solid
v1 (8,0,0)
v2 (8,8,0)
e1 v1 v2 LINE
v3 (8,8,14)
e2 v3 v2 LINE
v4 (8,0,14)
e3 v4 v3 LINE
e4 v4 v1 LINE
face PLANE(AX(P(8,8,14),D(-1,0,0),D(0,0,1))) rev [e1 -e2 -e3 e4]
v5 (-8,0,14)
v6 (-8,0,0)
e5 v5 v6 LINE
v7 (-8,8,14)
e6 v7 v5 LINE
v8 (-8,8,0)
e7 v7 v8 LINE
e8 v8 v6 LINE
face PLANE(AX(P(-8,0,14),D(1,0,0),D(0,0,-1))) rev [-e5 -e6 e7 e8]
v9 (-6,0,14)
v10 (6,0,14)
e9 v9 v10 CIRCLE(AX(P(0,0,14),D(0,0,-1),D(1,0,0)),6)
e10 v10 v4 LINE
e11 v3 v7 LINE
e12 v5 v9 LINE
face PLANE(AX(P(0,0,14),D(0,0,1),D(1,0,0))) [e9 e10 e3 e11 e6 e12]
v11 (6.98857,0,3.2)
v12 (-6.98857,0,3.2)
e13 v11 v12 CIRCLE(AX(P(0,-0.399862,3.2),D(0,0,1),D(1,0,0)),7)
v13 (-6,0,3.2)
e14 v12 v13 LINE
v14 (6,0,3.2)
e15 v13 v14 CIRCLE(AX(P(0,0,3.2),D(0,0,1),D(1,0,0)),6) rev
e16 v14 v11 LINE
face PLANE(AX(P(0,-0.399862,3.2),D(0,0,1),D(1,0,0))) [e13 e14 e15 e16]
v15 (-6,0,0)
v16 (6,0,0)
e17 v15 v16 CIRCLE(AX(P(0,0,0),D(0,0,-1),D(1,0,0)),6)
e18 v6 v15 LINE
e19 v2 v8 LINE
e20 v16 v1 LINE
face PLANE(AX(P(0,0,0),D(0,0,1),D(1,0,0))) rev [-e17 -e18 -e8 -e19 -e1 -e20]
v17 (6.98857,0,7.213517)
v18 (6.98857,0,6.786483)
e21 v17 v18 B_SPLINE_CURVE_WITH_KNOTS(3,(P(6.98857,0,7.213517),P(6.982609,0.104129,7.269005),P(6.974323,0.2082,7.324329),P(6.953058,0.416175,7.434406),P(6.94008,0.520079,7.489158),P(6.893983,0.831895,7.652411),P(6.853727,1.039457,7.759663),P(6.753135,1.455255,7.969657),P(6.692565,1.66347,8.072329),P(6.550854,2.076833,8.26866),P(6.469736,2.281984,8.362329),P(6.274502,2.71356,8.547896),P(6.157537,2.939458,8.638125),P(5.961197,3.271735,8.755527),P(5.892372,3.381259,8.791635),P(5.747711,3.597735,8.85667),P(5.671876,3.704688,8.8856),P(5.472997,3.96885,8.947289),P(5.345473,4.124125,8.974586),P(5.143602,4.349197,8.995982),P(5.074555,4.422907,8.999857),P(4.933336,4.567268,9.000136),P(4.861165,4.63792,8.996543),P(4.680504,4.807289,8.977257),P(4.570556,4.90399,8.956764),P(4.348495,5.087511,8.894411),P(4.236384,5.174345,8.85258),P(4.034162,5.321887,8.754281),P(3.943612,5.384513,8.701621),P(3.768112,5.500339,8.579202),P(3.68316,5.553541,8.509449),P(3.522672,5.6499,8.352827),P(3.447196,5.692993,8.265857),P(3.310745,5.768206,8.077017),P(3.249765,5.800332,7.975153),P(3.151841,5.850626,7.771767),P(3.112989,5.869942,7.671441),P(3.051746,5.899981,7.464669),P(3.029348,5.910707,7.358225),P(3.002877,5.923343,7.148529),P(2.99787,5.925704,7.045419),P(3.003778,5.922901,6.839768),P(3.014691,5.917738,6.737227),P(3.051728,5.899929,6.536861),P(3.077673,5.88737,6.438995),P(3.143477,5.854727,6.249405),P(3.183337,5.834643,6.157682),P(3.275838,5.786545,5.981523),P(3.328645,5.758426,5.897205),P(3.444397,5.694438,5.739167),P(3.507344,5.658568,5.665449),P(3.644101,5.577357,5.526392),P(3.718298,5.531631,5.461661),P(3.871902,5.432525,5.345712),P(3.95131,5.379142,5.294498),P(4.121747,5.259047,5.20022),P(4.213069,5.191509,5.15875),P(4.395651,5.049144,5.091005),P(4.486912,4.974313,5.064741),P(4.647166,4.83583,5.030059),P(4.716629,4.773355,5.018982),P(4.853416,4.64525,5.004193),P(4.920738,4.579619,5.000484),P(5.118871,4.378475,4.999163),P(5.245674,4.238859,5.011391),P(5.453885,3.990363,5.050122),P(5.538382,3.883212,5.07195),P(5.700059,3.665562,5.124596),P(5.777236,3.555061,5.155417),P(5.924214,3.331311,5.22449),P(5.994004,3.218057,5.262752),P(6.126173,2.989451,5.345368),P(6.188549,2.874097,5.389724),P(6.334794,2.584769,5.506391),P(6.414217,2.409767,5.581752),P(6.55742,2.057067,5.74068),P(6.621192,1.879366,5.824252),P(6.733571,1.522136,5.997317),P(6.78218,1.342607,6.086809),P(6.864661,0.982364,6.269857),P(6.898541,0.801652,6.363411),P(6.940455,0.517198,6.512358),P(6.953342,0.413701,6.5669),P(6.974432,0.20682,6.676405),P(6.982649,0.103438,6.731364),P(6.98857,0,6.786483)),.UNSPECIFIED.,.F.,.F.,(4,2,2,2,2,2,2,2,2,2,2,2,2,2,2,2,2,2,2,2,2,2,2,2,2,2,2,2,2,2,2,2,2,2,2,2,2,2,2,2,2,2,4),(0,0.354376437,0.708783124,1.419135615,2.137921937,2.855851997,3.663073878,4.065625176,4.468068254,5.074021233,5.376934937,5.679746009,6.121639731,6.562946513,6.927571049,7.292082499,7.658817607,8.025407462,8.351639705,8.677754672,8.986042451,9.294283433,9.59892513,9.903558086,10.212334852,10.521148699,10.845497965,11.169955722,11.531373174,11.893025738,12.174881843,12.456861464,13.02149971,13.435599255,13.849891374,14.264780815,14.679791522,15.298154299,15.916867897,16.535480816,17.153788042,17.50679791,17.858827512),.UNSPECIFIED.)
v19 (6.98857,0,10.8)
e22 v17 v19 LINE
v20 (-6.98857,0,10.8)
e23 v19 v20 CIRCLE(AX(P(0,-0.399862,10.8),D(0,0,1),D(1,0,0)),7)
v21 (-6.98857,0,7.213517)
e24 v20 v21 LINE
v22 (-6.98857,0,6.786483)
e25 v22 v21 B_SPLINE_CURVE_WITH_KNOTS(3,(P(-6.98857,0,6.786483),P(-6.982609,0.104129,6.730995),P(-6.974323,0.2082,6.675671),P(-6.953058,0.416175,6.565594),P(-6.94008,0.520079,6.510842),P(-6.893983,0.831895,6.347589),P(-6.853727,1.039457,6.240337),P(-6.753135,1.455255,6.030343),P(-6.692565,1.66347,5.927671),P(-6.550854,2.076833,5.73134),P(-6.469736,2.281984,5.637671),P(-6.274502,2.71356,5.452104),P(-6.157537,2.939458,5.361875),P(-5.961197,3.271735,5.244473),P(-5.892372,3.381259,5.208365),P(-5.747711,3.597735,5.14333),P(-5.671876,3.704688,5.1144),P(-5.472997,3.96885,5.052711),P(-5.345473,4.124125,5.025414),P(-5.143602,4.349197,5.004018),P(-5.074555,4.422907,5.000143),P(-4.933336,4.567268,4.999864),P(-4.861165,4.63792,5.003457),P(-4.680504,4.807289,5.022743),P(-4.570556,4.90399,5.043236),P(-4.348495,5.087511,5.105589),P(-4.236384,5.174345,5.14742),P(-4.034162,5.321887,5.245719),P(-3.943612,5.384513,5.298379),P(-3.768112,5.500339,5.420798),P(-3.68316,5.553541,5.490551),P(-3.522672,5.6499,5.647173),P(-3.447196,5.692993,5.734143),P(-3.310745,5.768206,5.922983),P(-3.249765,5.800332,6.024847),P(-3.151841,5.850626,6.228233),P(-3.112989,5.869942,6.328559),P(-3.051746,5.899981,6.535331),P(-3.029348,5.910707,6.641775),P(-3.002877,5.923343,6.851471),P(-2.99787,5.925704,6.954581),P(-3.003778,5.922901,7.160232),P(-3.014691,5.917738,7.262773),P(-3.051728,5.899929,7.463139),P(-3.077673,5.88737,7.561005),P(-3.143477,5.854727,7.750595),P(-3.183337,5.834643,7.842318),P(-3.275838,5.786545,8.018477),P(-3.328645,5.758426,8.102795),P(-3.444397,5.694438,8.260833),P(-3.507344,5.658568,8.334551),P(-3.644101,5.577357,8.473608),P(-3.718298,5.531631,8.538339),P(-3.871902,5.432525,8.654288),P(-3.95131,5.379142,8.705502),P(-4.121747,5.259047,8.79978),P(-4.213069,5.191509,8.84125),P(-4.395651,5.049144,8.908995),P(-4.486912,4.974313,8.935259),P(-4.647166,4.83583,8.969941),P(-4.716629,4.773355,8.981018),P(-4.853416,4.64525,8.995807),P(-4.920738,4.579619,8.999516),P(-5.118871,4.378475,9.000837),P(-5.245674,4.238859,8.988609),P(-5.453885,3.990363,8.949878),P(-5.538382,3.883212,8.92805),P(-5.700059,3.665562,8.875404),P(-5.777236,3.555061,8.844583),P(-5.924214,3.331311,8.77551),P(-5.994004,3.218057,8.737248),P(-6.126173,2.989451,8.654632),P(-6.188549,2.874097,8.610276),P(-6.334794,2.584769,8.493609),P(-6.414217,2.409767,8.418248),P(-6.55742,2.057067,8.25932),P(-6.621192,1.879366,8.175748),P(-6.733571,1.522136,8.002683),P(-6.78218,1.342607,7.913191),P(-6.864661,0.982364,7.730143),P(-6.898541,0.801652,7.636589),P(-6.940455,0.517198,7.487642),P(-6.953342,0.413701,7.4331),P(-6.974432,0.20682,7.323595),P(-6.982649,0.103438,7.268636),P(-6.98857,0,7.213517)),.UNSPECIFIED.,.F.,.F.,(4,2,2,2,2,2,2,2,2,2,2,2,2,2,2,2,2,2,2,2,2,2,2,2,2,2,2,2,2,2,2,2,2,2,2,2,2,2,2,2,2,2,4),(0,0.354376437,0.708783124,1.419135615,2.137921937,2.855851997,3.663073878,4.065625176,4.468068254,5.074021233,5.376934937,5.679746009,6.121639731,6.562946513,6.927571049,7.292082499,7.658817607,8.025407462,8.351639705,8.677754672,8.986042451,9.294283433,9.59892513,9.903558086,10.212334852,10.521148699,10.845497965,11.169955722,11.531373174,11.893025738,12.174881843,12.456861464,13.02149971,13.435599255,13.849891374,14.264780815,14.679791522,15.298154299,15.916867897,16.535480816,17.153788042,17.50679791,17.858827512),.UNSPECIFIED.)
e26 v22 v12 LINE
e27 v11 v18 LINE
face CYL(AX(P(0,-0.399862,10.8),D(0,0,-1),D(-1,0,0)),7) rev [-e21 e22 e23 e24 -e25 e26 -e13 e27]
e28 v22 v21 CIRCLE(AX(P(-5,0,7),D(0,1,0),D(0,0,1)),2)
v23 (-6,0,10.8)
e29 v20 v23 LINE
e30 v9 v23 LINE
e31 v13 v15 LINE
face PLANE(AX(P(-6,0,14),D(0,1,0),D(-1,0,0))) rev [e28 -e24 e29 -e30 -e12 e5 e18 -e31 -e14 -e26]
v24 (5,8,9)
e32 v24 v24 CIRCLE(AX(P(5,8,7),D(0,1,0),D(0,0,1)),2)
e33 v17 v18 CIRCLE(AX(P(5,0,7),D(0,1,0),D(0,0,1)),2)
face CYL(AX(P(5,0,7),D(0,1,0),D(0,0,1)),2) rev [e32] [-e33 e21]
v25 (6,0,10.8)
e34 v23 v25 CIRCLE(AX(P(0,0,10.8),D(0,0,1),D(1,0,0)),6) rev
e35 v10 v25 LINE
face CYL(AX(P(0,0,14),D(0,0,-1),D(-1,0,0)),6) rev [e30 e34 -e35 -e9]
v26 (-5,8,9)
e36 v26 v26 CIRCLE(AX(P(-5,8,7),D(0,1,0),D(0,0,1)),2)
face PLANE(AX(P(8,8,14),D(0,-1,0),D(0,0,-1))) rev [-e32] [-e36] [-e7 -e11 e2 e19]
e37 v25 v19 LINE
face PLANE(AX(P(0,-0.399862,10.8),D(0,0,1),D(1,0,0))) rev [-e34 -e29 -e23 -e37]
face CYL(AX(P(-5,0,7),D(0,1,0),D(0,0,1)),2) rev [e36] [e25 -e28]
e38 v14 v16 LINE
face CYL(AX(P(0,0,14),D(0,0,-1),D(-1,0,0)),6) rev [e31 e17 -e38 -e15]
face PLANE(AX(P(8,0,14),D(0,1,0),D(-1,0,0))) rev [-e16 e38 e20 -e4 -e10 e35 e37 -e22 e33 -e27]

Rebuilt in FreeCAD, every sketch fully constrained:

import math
import FreeCAD as App
import Part
import Sketcher

V = App.Vector

doc = App.newDocument("Part")
params = doc.addObject("Spreadsheet::Sheet", "Params")
for row, (alias, value) in enumerate([
    ("sketch1_radius", "6 mm"),
    ("sketch1_width", "2 mm"),
    ("sketch1_height", "8 mm"),
    ("pad1_length", "14 mm"),
    ("sketch2_diameter", "14 mm"),
    ("pocket1_length", "3.8 mm"),
    ("pocket1_length2", "3.8 mm"),
    ("sketch3_diameter", "4 mm"),
], start=1):
    params.set(f"A{row}", alias)
    params.set(f"B{row}", "=" + value)
    params.setAlias(f"B{row}", alias)

body = doc.addObject("PartDesign::Body", "Body")

sketch1 = body.newObject("Sketcher::SketchObject", "Sketch")
sketch1.AttachmentSupport = (doc.getObject("XY_Plane"), [""])
sketch1.MapMode = "FlatFace"
sketch1.addGeometry([
    Part.LineSegment(V(6, 0, 0), V(8, 0, 0)),
    Part.LineSegment(V(8, 0, 0), V(8, 8, 0)),
    Part.LineSegment(V(8, 8, 0), V(-8, 8, 0)),
    Part.LineSegment(V(-8, 8, 0), V(-8, 0, 0)),
    Part.LineSegment(V(-8, 0, 0), V(-6, 0, 0)),
    Part.ArcOfCircle(Part.Circle(V(0, 0, 0), V(0, 0, 1), 6), math.radians(0), math.radians(180)),
], False)
sketch1.addConstraint([
    Sketcher.Constraint("Coincident", 0, 2, 1, 1),
    Sketcher.Constraint("Coincident", 1, 2, 2, 1),
    Sketcher.Constraint("Coincident", 2, 2, 3, 1),
    Sketcher.Constraint("Coincident", 3, 2, 4, 1),
    Sketcher.Constraint("Coincident", 4, 2, 5, 2),
    Sketcher.Constraint("Coincident", 5, 1, 0, 1),
    Sketcher.Constraint("Horizontal", 0),
    Sketcher.Constraint("Vertical", 1),
    Sketcher.Constraint("Horizontal", 2),
    Sketcher.Constraint("Vertical", 3),
    Sketcher.Constraint("Horizontal", 4),
    Sketcher.Constraint("Coincident", 5, 3, -1, 1),
    Sketcher.Constraint("Symmetric", 0, 2, 3, 2, -1, 1),
    Sketcher.Constraint("PointOnObject", 0, 2, -1),
    Sketcher.Constraint("Radius", 5, 6.0),
    Sketcher.Constraint("DistanceX", 0, 1, 0, 2, 2.0),
    Sketcher.Constraint("DistanceY", 1, 1, 1, 2, 8.0),
])
sketch1.setExpression("Constraints[14]", "Params.sketch1_radius")
sketch1.setExpression("Constraints[15]", "Params.sketch1_width")
sketch1.setExpression("Constraints[16]", "Params.sketch1_height")
pad1 = body.newObject("PartDesign::Pad", "Pad")
pad1.Profile = sketch1
pad1.setExpression("Length", "Params.pad1_length")

sketch2 = body.newObject("Sketcher::SketchObject", "Sketch001")
sketch2.AttachmentSupport = (doc.getObject("XY_Plane"), [""])
sketch2.MapMode = "FlatFace"
sketch2.AttachmentOffset = App.Placement(V(0, 0, 7), App.Rotation())
sketch2.addGeometry(Part.Circle(V(0, -0.399862, 0), V(0, 0, 1), 7), False)
sketch2.addConstraint([
    Sketcher.Constraint("PointOnObject", 0, 3, -2),
    Sketcher.Constraint("Diameter", 0, 14.0),
    Sketcher.Constraint("DistanceY", 0, 3, -1, 1, 0.399862),
])
sketch2.setExpression("Constraints[1]", "Params.sketch2_diameter")
pocket1 = body.newObject("PartDesign::Pocket", "Pocket")
pocket1.Profile = sketch2
pocket1.Type = "TwoLengths"
pocket1.setExpression("Length", "Params.pocket1_length")
pocket1.setExpression("Length2", "Params.pocket1_length2")
pocket1.Reversed = True

sketch3 = body.newObject("Sketcher::SketchObject", "Sketch002")
sketch3.AttachmentSupport = (doc.getObject("XZ_Plane"), [""])
sketch3.MapMode = "FlatFace"
sketch3.AttachmentOffset = App.Placement(V(0, 0, -8), App.Rotation())
sketch3.addGeometry([
    Part.Circle(V(-5, 7, 0), V(0, 0, 1), 2),
    Part.Circle(V(5, 7, 0), V(0, 0, 1), 2),
], False)
sketch3.addConstraint([
    Sketcher.Constraint("Equal", 0, 1),
    Sketcher.Constraint("Symmetric", 0, 3, 1, 3, -2),
    Sketcher.Constraint("Diameter", 0, 4.0),
    Sketcher.Constraint("DistanceX", 0, 3, -1, 1, 5.0),
    Sketcher.Constraint("DistanceY", -1, 1, 0, 3, 7.0),
])
sketch3.setExpression("Constraints[2]", "Params.sketch3_diameter")
pocket2 = body.newObject("PartDesign::Pocket", "Pocket001")
pocket2.Profile = sketch3
pocket2.Type = "ThroughAll"
pocket2.Reversed = True

doc.recompute()
